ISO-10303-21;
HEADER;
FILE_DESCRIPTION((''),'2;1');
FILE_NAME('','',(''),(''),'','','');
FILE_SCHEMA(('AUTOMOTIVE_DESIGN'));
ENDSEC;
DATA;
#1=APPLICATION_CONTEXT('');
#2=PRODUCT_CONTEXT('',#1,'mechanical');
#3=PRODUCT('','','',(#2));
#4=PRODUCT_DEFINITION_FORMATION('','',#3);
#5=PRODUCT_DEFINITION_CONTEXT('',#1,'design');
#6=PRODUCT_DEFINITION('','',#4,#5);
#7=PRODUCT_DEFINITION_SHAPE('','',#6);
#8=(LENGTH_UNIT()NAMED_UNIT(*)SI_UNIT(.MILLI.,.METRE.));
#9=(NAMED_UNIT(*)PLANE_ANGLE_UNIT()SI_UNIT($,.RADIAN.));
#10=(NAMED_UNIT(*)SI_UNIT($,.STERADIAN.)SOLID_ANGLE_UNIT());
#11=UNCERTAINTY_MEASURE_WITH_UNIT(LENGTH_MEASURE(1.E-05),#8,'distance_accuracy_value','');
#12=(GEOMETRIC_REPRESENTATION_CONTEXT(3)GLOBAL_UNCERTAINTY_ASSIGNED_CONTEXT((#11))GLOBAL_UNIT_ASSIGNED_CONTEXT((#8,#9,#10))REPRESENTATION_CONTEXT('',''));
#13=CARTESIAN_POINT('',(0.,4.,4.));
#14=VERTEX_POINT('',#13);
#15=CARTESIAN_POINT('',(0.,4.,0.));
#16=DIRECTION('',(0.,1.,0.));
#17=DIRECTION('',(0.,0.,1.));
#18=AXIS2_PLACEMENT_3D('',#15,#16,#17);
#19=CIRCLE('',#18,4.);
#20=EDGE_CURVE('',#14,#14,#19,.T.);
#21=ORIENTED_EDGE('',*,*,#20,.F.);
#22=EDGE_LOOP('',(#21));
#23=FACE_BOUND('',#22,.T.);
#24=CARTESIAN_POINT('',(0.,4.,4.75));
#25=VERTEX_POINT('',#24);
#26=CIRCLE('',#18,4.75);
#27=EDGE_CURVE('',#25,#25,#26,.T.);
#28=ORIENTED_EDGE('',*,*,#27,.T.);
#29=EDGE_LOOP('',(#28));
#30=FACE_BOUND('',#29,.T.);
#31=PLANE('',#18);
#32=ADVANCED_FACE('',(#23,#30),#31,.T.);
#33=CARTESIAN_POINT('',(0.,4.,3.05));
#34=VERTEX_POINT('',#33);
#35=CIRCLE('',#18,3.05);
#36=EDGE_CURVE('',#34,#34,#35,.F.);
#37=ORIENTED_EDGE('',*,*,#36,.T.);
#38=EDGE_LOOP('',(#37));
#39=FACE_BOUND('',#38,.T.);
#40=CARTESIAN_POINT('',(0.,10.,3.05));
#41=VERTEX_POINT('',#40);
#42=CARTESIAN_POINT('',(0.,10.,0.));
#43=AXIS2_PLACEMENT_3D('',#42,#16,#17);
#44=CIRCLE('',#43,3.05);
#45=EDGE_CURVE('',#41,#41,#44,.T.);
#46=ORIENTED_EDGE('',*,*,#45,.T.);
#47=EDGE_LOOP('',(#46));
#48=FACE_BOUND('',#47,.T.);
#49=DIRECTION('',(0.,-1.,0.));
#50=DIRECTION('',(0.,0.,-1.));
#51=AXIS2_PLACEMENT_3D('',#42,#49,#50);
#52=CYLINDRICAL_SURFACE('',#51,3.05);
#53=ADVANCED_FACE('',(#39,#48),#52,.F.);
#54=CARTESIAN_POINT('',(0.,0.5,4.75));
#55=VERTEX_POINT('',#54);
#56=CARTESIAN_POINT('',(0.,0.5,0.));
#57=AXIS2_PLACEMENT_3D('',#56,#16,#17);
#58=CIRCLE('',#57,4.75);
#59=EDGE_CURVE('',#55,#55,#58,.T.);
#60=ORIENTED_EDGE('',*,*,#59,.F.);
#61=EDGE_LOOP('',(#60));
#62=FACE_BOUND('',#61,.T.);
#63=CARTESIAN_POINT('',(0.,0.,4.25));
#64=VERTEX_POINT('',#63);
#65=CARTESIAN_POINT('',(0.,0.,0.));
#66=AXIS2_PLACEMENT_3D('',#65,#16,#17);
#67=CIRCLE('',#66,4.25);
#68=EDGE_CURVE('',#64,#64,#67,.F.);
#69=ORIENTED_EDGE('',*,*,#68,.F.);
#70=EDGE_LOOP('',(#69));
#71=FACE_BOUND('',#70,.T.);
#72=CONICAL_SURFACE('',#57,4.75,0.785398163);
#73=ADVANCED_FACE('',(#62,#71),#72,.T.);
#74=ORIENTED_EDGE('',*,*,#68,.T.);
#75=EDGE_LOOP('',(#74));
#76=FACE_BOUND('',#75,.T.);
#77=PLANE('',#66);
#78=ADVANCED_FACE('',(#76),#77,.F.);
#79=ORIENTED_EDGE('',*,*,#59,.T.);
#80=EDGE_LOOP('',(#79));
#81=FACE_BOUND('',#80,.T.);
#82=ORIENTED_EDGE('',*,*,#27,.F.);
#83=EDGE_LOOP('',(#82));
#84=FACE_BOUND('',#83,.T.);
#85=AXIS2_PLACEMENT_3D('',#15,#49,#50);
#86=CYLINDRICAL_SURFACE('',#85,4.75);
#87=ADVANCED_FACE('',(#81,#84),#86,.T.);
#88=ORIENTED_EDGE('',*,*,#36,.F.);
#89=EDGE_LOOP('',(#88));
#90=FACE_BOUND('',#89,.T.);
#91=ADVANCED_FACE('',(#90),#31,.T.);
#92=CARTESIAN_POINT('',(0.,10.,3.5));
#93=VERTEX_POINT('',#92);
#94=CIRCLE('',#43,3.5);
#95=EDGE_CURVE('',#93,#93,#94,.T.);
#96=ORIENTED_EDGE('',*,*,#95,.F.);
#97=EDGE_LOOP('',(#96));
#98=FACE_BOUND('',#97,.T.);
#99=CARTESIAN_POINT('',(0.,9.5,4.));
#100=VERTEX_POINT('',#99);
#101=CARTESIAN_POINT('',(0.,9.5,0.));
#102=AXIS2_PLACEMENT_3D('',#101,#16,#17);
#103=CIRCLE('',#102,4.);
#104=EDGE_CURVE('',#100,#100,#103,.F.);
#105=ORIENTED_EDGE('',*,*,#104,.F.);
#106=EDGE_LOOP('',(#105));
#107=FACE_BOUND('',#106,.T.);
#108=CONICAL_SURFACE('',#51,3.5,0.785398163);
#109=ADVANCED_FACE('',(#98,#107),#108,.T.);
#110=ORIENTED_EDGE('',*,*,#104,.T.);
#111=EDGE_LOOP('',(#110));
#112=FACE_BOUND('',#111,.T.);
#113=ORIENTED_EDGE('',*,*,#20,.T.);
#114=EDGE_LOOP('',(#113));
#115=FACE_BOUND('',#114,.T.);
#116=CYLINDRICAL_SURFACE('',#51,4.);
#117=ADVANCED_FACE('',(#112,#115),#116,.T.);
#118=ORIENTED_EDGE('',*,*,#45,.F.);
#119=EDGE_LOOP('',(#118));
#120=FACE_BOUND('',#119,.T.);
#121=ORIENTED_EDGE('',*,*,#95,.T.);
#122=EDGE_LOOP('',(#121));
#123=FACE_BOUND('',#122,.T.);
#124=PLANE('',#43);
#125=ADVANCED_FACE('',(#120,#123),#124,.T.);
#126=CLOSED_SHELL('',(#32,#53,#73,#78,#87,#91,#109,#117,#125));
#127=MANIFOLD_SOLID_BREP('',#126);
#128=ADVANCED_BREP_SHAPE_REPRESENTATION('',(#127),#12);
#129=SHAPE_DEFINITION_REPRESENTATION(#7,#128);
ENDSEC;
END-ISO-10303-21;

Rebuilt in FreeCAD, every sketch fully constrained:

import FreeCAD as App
import Part
import Sketcher


def edges_at(feature, points):
    """Names of the edges that pass closest to the given points."""
    edges = feature.Shape.Edges
    near = lambda p: min(range(len(edges)), key=lambda i: edges[i].distToShape(Part.Vertex(*p))[0])
    return sorted({f"Edge{near(p) + 1}" for p in points})

doc = App.newDocument("Part")
params = doc.addObject("Spreadsheet::Sheet", "Params")
for row, (alias, value) in enumerate([
    ("sketch1_diameter", "9.5 mm"),
    ("pad1_length", "4 mm"),
    ("sketch2_diameter", "8 mm"),
    ("sketch2_diameter2", "6.1 mm"),
    ("pad2_length", "6 mm"),
    ("chamfer_size", "0.5 mm"),
], start=1):
    params.set(f"A{row}", alias)
    params.set(f"B{row}", "=" + value)
    params.setAlias(f"B{row}", alias)

body = doc.addObject("PartDesign::Body", "Body")

sketch1 = doc.addObject("Sketcher::SketchObject", "Sketch")
body.addObject(sketch1)
sketch1.AttachmentSupport = (doc.XZ_Plane, [""])
sketch1.MapMode = "FlatFace"
sketch1.addGeometry(Part.Circle(App.Vector(0, 0, 0), App.Vector(0, 0, 1), 4.75), False)
sketch1.addConstraint([
    Sketcher.Constraint("Coincident", 0, 3, -1, 1),
    Sketcher.Constraint("Diameter", 0, 9.5),
])
sketch1.setExpression("Constraints[1]", "Params.sketch1_diameter")
pad1 = doc.addObject("PartDesign::Pad", "Pad")
body.addObject(pad1)
pad1.Profile = sketch1
pad1.setExpression("Length", "Params.pad1_length")
pad1.Reversed = True

sketch2 = doc.addObject("Sketcher::SketchObject", "Sketch001")
body.addObject(sketch2)
sketch2.AttachmentSupport = (doc.XZ_Plane, [""])
sketch2.MapMode = "FlatFace"
sketch2.AttachmentOffset = App.Placement(App.Vector(0, 0, -4), App.Rotation())
sketch2.addGeometry([
    Part.Circle(App.Vector(0, 0, 0), App.Vector(0, 0, 1), 4),
    Part.Circle(App.Vector(0, 0, 0), App.Vector(0, 0, 1), 3.05),
], False)
sketch2.addConstraint([
    Sketcher.Constraint("Coincident", 0, 3, -1, 1),
    Sketcher.Constraint("Coincident", 1, 3, -1, 1),
    Sketcher.Constraint("Diameter", 0, 8.0),
    Sketcher.Constraint("Diameter", 1, 6.1),
])
sketch2.setExpression("Constraints[2]", "Params.sketch2_diameter")
sketch2.setExpression("Constraints[3]", "Params.sketch2_diameter2")
pad2 = doc.addObject("PartDesign::Pad", "Pad001")
body.addObject(pad2)
pad2.Profile = sketch2
pad2.setExpression("Length", "Params.pad2_length")
pad2.Reversed = True
doc.recompute()

chamfer = doc.addObject("PartDesign::Chamfer", "Chamfer")
body.addObject(chamfer)
chamfer.Base = (pad2, edges_at(pad2, [(0, 0, -4.75), (0, 10, -4)]))
chamfer.setExpression("Size", "Params.chamfer_size")

doc.recompute()
